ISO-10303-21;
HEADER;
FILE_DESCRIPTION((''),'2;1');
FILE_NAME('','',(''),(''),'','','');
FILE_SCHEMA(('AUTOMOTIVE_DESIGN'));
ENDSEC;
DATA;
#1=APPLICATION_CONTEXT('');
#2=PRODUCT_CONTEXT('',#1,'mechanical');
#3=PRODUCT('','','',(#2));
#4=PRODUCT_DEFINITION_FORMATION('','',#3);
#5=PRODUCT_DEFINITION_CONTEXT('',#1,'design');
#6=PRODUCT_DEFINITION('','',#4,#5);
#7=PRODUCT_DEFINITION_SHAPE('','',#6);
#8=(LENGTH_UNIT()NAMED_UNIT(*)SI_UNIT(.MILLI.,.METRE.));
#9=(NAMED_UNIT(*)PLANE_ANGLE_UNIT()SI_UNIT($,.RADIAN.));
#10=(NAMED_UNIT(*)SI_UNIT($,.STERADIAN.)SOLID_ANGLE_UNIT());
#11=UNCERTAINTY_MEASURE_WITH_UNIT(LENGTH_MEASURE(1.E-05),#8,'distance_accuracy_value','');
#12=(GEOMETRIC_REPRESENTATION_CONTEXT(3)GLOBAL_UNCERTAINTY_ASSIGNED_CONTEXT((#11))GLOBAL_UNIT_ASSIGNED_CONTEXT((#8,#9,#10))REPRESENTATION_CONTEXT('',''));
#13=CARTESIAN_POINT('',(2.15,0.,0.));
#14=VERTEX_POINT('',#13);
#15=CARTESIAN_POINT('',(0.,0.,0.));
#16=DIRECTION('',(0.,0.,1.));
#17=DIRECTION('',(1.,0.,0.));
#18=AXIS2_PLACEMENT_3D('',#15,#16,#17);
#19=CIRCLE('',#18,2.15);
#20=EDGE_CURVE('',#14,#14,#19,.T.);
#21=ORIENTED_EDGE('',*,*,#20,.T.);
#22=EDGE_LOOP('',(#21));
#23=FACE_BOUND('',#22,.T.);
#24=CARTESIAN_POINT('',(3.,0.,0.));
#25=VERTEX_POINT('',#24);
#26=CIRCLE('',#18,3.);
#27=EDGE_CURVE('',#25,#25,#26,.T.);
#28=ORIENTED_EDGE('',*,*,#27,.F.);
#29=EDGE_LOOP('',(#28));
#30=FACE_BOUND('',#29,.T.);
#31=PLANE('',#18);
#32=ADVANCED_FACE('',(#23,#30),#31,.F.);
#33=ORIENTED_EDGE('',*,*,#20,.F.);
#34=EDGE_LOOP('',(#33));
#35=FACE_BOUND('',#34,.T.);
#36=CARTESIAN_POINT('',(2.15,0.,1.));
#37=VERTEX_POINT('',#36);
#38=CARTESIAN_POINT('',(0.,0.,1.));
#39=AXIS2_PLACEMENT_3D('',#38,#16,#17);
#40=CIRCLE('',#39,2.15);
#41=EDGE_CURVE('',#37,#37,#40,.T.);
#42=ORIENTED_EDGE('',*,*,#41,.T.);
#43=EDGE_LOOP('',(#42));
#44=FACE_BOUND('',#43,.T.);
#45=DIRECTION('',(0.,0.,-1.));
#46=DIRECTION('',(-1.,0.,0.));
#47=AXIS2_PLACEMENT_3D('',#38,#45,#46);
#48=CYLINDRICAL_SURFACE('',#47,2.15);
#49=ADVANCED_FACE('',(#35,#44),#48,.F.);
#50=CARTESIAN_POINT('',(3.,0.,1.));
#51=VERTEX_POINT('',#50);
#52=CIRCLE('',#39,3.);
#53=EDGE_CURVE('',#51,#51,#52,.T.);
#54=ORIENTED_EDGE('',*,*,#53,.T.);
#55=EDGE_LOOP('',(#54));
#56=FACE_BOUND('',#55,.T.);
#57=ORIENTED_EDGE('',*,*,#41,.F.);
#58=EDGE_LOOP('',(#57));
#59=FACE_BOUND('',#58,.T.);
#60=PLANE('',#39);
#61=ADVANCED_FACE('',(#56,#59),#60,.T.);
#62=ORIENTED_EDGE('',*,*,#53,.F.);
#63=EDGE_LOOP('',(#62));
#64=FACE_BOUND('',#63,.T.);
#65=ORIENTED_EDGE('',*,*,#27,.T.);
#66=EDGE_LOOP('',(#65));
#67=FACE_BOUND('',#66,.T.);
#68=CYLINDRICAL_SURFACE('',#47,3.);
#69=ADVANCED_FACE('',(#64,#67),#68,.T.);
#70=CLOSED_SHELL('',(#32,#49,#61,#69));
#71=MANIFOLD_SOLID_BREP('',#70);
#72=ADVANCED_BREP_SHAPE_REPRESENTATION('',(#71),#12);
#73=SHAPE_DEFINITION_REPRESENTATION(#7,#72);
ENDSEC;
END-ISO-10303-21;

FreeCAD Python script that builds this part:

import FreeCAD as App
import Part
import Sketcher
Q = App.Units.Quantity

doc = App.newDocument("Part")
params = doc.addObject("Spreadsheet::Sheet", "Params")
for row, (alias, value) in enumerate([
    ("sketch1_diameter", "6 mm"),
    ("sketch1_diameter2", "4.3 mm"),
    ("pad1_length", "1 mm"),
], start=1):
    params.set(f"A{row}", alias)
    params.set(f"B{row}", "=" + value)
    params.setAlias(f"B{row}", alias)

body = doc.addObject("PartDesign::Body", "Body")

# Sketch on XY plane
sketch1 = doc.addObject("Sketcher::SketchObject", "Sketch")
body.addObject(sketch1)
sketch1.AttachmentSupport = (doc.XY_Plane, [""])
sketch1.MapMode = "FlatFace"
sketch1.addGeometry([
    Part.Circle(App.Vector(0, 0, 0), App.Vector(0, 0, 1), 3),
    Part.Circle(App.Vector(0, 0, 0), App.Vector(0, 0, 1), 2.15),
], False)
sketch1.addConstraint([
    Sketcher.Constraint("Coincident", 0, 3, -1, 1),
    Sketcher.Constraint("Coincident", 1, 3, -1, 1),
    Sketcher.Constraint("Diameter", 0, Q("6 mm")),
    Sketcher.Constraint("Diameter", 1, Q("4.3 mm")),
])
sketch1.setExpression("Constraints[2]", "Params.sketch1_diameter")
sketch1.setExpression("Constraints[3]", "Params.sketch1_diameter2")
pad1 = doc.addObject("PartDesign::Pad", "Pad")
body.addObject(pad1)
pad1.Profile = sketch1
pad1.setExpression("Length", "Params.pad1_length")

doc.recompute()
